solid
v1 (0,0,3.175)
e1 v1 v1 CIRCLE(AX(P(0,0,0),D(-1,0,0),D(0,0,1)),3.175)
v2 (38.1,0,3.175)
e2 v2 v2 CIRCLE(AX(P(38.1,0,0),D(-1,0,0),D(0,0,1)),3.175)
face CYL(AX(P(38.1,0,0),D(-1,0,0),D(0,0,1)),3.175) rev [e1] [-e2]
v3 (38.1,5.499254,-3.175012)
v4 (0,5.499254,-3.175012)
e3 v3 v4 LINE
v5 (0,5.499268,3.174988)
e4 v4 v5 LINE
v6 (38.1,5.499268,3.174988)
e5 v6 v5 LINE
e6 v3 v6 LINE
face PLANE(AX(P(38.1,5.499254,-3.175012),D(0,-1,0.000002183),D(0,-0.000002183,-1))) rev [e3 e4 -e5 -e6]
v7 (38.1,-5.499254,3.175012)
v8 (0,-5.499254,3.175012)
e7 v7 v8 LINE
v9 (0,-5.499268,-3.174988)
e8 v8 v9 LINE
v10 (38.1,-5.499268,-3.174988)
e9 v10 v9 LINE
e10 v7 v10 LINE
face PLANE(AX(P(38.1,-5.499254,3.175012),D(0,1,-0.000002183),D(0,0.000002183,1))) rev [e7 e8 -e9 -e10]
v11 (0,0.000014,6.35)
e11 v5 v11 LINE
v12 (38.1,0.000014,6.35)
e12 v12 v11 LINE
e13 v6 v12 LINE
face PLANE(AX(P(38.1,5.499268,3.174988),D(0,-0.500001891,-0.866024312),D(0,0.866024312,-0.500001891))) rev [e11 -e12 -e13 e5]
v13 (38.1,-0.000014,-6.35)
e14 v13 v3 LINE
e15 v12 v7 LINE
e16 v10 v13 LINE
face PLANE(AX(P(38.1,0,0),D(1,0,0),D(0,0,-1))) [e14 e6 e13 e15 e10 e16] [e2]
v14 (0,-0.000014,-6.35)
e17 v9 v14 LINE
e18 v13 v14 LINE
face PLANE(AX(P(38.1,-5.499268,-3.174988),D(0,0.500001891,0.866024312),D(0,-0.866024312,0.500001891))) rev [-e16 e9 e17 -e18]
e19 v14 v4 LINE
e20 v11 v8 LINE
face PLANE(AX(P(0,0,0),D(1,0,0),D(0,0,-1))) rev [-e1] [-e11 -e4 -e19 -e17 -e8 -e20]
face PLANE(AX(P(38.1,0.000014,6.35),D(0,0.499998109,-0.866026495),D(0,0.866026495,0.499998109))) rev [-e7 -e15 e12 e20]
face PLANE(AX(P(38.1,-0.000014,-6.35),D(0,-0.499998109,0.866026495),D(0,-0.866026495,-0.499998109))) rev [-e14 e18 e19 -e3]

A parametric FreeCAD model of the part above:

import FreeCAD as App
import Part
import Sketcher
from FreeCAD import Vector
Q = App.Units.Quantity

doc = App.newDocument("Part")
body = doc.addObject("PartDesign::Body", "Body")

sketch1 = body.newObject("Sketcher::SketchObject", "Sketch")
sketch1.AttachmentSupport = (doc.getObject("YZ_Plane"), [""])
sketch1.MapMode = "FlatFace"
sketch1.addGeometry([
    Part.LineSegment(Vector(0, -6, 0), Vector(5, -3, 0)),
    Part.LineSegment(Vector(5, -3, 0), Vector(5, 3, 0)),
    Part.LineSegment(Vector(5, 3, 0), Vector(0, 6, 0)),
    Part.LineSegment(Vector(0, 6, 0), Vector(-5, 3, 0)),
    Part.LineSegment(Vector(-5, 3, 0), Vector(-5, -3, 0)),
    Part.LineSegment(Vector(-5, -3, 0), Vector(0, -6, 0)),
], False)
sketch1.addConstraint([
    Sketcher.Constraint("Coincident", 0, 2, 1, 1),
    Sketcher.Constraint("Coincident", 1, 2, 2, 1),
    Sketcher.Constraint("Coincident", 2, 2, 3, 1),
    Sketcher.Constraint("Coincident", 3, 2, 4, 1),
    Sketcher.Constraint("Coincident", 4, 2, 5, 1),
    Sketcher.Constraint("Coincident", 5, 2, 0, 1),
    Sketcher.Constraint("Symmetric", 0, 2, 3, 2, -1, 1),
    Sketcher.Constraint("Symmetric", 1, 2, 4, 2, -1, 1),
    Sketcher.Constraint("Symmetric", 2, 2, 5, 2, -1, 1),
    Sketcher.Constraint("Equal", 0, 1),
    Sketcher.Constraint("Equal", 1, 2),
    Sketcher.Constraint("DistanceY", 5, 2, 2, 2, Q("0.5 in")),
    Sketcher.Constraint("Distance", 0, Q("0.25 in")),
    Sketcher.Constraint("DistanceX", -1, 1, 1, 2, Q("5.499268 mm")),
    Sketcher.Constraint("DistanceX", 2, 2, 0, 2, Q("5.499241 mm")),
])
pad1 = body.newObject("PartDesign::Pad", "Pad")
pad1.Profile = sketch1
pad1.Length = Q("1.5 in")

sketch2 = body.newObject("Sketcher::SketchObject", "Sketch001")
sketch2.AttachmentSupport = (doc.getObject("YZ_Plane"), [""])
sketch2.MapMode = "FlatFace"
sketch2.addGeometry(Part.Circle(Vector(0, 0, 0), Vector(0, 0, 1), 3.2), False)
sketch2.addConstraint([
    Sketcher.Constraint("Coincident", 0, 3, -1, 1),
    Sketcher.Constraint("Diameter", 0, Q("0.25 in")),
])
pocket1 = body.newObject("PartDesign::Pocket", "Pocket")
pocket1.Profile = sketch2
pocket1.Type = "ThroughAll"
pocket1.Reversed = True

doc.recompute()
